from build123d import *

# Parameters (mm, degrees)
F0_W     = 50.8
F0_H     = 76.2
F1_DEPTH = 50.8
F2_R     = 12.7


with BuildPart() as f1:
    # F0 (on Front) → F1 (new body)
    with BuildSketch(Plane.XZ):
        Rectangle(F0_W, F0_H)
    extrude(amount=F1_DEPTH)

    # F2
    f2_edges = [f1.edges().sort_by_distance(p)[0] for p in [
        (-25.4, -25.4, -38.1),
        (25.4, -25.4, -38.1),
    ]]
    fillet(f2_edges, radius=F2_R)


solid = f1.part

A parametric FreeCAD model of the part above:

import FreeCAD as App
import Part
import Sketcher
from FreeCAD import Vector
Q = App.Units.Quantity


def edges_at(feature, points):
    """Names of the edges that pass closest to the given points."""
    edges = feature.Shape.Edges
    near = lambda p: min(range(len(edges)), key=lambda i: edges[i].distToShape(Part.Vertex(*p))[0])
    return sorted({f"Edge{near(p) + 1}" for p in points})

doc = App.newDocument("Part")
params = doc.addObject("Spreadsheet::Sheet", "Params")
for row, (alias, value) in enumerate([
    ("sketch1_width", "2 in"),
    ("sketch1_height", "3 in"),
    ("pad1_length", "2 in"),
    ("fillet_radius", "0.5 in"),
], start=1):
    params.set(f"A{row}", alias)
    params.set(f"B{row}", "=" + value)
    params.setAlias(f"B{row}", alias)

body = doc.addObject("PartDesign::Body", "Body")

sketch1 = body.newObject("Sketcher::SketchObject", "Sketch")
sketch1.AttachmentSupport = (doc.getObject("XZ_Plane"), [""])
sketch1.MapMode = "FlatFace"
sketch1.addGeometry(Part.LineSegment(Vector(-25, 38, 0), Vector(-25, -38, 0)), False)
sketch1.addGeometry(Part.LineSegment(Vector(-25, -38, 0), Vector(25, -38, 0)), False)
sketch1.addGeometry(Part.LineSegment(Vector(25, -38, 0), Vector(25, 38, 0)), False)
sketch1.addGeometry(Part.LineSegment(Vector(25, 38, 0), Vector(-25, 38, 0)), False)
sketch1.addConstraint(Sketcher.Constraint("Coincident", 0, 2, 1, 1))
sketch1.addConstraint(Sketcher.Constraint("Coincident", 1, 2, 2, 1))
sketch1.addConstraint(Sketcher.Constraint("Coincident", 2, 2, 3, 1))
sketch1.addConstraint(Sketcher.Constraint("Coincident", 3, 2, 0, 1))
sketch1.addConstraint(Sketcher.Constraint("Vertical", 0))
sketch1.addConstraint(Sketcher.Constraint("Horizontal", 1))
sketch1.addConstraint(Sketcher.Constraint("Vertical", 2))
sketch1.addConstraint(Sketcher.Constraint("Horizontal", 3))
sketch1.addConstraint(Sketcher.Constraint("Symmetric", 0, 2, 2, 2, -1, 1))
sketch1.addConstraint(Sketcher.Constraint("DistanceX", 1, 1, 1, 2, Q("2 in")))
sketch1.addConstraint(Sketcher.Constraint("DistanceY", 0, 2, 0, 1, Q("3 in")))
sketch1.setExpression("Constraints[9]", "Params.sketch1_width")
sketch1.setExpression("Constraints[10]", "Params.sketch1_height")
pad1 = body.newObject("PartDesign::Pad", "Pad")
pad1.Profile = sketch1
pad1.setExpression("Length", "Params.pad1_length")
doc.recompute()

fillet = body.newObject("PartDesign::Fillet", "Fillet")
fillet.Base = (pad1, edges_at(pad1, [(-25.4, -25.4, -38.1), (25.4, -25.4, -38.1)]))
fillet.setExpression("Radius", "Params.fillet_radius")

doc.recompute()
